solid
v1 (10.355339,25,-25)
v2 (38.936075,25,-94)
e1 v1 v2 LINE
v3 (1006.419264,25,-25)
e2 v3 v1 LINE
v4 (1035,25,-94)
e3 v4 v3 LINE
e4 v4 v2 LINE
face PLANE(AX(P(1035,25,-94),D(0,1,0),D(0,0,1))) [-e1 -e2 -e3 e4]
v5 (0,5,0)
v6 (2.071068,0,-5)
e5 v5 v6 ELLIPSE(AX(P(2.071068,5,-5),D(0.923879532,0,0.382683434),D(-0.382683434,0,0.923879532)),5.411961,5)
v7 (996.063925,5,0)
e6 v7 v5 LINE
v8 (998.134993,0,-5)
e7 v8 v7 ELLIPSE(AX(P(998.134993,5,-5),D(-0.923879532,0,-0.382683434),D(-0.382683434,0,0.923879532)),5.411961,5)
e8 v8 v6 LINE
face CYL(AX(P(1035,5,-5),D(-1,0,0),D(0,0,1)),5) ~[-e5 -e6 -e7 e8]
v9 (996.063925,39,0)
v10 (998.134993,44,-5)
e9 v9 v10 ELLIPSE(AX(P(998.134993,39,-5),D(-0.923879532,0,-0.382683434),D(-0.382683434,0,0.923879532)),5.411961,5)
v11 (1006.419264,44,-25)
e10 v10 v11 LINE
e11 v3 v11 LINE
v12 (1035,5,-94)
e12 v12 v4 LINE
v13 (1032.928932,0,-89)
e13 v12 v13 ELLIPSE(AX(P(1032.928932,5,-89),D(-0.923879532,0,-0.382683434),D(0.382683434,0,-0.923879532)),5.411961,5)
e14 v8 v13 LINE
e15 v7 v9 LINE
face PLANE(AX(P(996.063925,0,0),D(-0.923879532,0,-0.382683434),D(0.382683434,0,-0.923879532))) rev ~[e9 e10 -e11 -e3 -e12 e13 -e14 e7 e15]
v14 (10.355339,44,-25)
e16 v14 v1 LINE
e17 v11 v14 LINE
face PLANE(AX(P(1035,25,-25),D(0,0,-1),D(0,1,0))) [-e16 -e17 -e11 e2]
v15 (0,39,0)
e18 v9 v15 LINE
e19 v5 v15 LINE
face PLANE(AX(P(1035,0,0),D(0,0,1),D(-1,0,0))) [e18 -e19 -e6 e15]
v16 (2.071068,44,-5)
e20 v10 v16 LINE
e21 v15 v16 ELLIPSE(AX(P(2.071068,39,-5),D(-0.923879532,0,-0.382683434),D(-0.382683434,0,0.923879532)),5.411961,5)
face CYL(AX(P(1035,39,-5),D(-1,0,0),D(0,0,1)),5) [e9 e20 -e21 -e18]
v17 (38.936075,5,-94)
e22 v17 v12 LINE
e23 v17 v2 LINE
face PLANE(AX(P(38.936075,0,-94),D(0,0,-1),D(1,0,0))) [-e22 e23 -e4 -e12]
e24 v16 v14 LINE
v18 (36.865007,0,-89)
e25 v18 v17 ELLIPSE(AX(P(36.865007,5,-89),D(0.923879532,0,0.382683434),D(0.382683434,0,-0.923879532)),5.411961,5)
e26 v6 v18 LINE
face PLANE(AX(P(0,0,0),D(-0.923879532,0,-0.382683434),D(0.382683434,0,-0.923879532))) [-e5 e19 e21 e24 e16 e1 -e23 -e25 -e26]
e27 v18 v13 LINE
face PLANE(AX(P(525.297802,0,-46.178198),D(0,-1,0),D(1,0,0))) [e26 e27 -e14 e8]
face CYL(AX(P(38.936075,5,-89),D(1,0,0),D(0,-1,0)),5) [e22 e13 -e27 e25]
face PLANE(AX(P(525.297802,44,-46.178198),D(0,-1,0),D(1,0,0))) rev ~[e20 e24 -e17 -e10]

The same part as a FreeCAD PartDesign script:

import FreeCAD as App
import Part
import Sketcher
Q = App.Units.Quantity


def edges_at(feature, points):
    """Names of the edges that pass closest to the given points."""
    edges = feature.Shape.Edges
    near = lambda p: min(range(len(edges)), key=lambda i: edges[i].distToShape(Part.Vertex(*p))[0])
    return sorted({f"Edge{near(p) + 1}" for p in points})

doc = App.newDocument("Part")
params = doc.addObject("Spreadsheet::Sheet", "Params")
for row, (alias, value) in enumerate([
    ("sketch1_width", "1035 mm"),
    ("sketch1_height", "94 mm"),
    ("pad1_length", "44 mm"),
    ("sketch2_width", "19 mm"),
    ("sketch2_height", "69 mm"),
    ("fillet_radius", "5 mm"),
    ("sketch3_height", "94 mm"),
], start=1):
    params.set(f"A{row}", alias)
    params.set(f"B{row}", "=" + value)
    params.setAlias(f"B{row}", alias)

body = doc.addObject("PartDesign::Body", "Body")

sketch1 = body.newObject("Sketcher::SketchObject", "Sketch")
sketch1.AttachmentSupport = (doc.getObject("XZ_Plane"), [""])
sketch1.MapMode = "FlatFace"
sketch1.addGeometry([
    Part.LineSegment(App.Vector(1035, 0, 0), App.Vector(0, 0, 0)),
    Part.LineSegment(App.Vector(0, 0, 0), App.Vector(38.936075, -94, 0)),
    Part.LineSegment(App.Vector(38.936075, -94, 0), App.Vector(1035, -94, 0)),
    Part.LineSegment(App.Vector(1035, -94, 0), App.Vector(1035, 0, 0)),
], False)
sketch1.addConstraint([
    Sketcher.Constraint("Coincident", 0, 2, 1, 1),
    Sketcher.Constraint("Coincident", 1, 2, 2, 1),
    Sketcher.Constraint("Coincident", 2, 2, 3, 1),
    Sketcher.Constraint("Coincident", 3, 2, 0, 1),
    Sketcher.Constraint("Horizontal", 0),
    Sketcher.Constraint("Horizontal", 2),
    Sketcher.Constraint("Vertical", 3),
    Sketcher.Constraint("Coincident", 0, 2, -1, 1),
    Sketcher.Constraint("DistanceX", 0, 2, 0, 1, 1035.0),
    Sketcher.Constraint("DistanceY", 3, 1, 3, 2, 94.0),
    Sketcher.Constraint("Angle", 1, Q("-67.5 deg")),
])
sketch1.setExpression("Constraints[8]", "Params.sketch1_width")
sketch1.setExpression("Constraints[9]", "Params.sketch1_height")
pad1 = body.newObject("PartDesign::Pad", "Pad")
pad1.Profile = sketch1
pad1.setExpression("Length", "Params.pad1_length")
pad1.Reversed = True

sketch2 = body.newObject("Sketcher::SketchObject", "Sketch001")
sketch2.AttachmentSupport = (doc.getObject("YZ_Plane"), [""])
sketch2.MapMode = "FlatFace"
sketch2.AttachmentOffset = App.Placement(App.Vector(0, 0, 1035), App.Rotation())
sketch2.addGeometry([
    Part.LineSegment(App.Vector(25, -25, 0), App.Vector(25, -94, 0)),
    Part.LineSegment(App.Vector(25, -94, 0), App.Vector(44, -94, 0)),
    Part.LineSegment(App.Vector(44, -94, 0), App.Vector(44, -25, 0)),
    Part.LineSegment(App.Vector(44, -25, 0), App.Vector(25, -25, 0)),
], False)
sketch2.addConstraint([
    Sketcher.Constraint("Coincident", 0, 2, 1, 1),
    Sketcher.Constraint("Coincident", 1, 2, 2, 1),
    Sketcher.Constraint("Coincident", 2, 2, 3, 1),
    Sketcher.Constraint("Coincident", 3, 2, 0, 1),
    Sketcher.Constraint("Vertical", 0),
    Sketcher.Constraint("Horizontal", 1),
    Sketcher.Constraint("Vertical", 2),
    Sketcher.Constraint("Horizontal", 3),
    Sketcher.Constraint("DistanceX", 1, 1, 1, 2, 19.0),
    Sketcher.Constraint("DistanceY", 0, 2, 0, 1, 69.0),
    Sketcher.Constraint("DistanceX", -1, 1, 0, 2, 25.0),
    Sketcher.Constraint("DistanceY", 0, 2, -1, 1, 94.0),
])
sketch2.setExpression("Constraints[8]", "Params.sketch2_width")
sketch2.setExpression("Constraints[9]", "Params.sketch2_height")
pocket1 = body.newObject("PartDesign::Pocket", "Pocket")
pocket1.Profile = sketch2
pocket1.Type = "ThroughAll"
doc.recompute()

fillet = body.newObject("PartDesign::Fillet", "Fillet")
fillet.Base = (pocket1, edges_at(pocket1, [(517.5, 0, 0), (536.968, 0, -94), (517.5, 44, 0)]))
fillet.setExpression("Radius", "Params.fillet_radius")

sketch3 = body.newObject("Sketcher::SketchObject", "Sketch002")
sketch3.AttachmentSupport = (doc.getObject("XZ_Plane"), [""])
sketch3.MapMode = "FlatFace"
sketch3.addGeometry([
    Part.LineSegment(App.Vector(996.063925, 0, 0), App.Vector(1035, -94, 0)),
    Part.LineSegment(App.Vector(1035, -94, 0), App.Vector(1035, 0, 0)),
    Part.LineSegment(App.Vector(1035, 0, 0), App.Vector(996.063925, 0, 0)),
], False)
sketch3.addConstraint([
    Sketcher.Constraint("Coincident", 0, 2, 1, 1),
    Sketcher.Constraint("Coincident", 1, 2, 2, 1),
    Sketcher.Constraint("Coincident", 2, 2, 0, 1),
    Sketcher.Constraint("Vertical", 1),
    Sketcher.Constraint("Horizontal", 2),
    Sketcher.Constraint("PointOnObject", 1, 2, -1),
    Sketcher.Constraint("DistanceY", 1, 1, 1, 2, 94.0),
    Sketcher.Constraint("DistanceX", -1, 1, 0, 2, 1035.0),
    Sketcher.Constraint("Angle", 0, Q("-67.5 deg")),
])
sketch3.setExpression("Constraints[6]", "Params.sketch3_height")
pocket2 = body.newObject("PartDesign::Pocket", "Pocket001")
pocket2.Profile = sketch3
pocket2.Type = "ThroughAll"

doc.recompute()
